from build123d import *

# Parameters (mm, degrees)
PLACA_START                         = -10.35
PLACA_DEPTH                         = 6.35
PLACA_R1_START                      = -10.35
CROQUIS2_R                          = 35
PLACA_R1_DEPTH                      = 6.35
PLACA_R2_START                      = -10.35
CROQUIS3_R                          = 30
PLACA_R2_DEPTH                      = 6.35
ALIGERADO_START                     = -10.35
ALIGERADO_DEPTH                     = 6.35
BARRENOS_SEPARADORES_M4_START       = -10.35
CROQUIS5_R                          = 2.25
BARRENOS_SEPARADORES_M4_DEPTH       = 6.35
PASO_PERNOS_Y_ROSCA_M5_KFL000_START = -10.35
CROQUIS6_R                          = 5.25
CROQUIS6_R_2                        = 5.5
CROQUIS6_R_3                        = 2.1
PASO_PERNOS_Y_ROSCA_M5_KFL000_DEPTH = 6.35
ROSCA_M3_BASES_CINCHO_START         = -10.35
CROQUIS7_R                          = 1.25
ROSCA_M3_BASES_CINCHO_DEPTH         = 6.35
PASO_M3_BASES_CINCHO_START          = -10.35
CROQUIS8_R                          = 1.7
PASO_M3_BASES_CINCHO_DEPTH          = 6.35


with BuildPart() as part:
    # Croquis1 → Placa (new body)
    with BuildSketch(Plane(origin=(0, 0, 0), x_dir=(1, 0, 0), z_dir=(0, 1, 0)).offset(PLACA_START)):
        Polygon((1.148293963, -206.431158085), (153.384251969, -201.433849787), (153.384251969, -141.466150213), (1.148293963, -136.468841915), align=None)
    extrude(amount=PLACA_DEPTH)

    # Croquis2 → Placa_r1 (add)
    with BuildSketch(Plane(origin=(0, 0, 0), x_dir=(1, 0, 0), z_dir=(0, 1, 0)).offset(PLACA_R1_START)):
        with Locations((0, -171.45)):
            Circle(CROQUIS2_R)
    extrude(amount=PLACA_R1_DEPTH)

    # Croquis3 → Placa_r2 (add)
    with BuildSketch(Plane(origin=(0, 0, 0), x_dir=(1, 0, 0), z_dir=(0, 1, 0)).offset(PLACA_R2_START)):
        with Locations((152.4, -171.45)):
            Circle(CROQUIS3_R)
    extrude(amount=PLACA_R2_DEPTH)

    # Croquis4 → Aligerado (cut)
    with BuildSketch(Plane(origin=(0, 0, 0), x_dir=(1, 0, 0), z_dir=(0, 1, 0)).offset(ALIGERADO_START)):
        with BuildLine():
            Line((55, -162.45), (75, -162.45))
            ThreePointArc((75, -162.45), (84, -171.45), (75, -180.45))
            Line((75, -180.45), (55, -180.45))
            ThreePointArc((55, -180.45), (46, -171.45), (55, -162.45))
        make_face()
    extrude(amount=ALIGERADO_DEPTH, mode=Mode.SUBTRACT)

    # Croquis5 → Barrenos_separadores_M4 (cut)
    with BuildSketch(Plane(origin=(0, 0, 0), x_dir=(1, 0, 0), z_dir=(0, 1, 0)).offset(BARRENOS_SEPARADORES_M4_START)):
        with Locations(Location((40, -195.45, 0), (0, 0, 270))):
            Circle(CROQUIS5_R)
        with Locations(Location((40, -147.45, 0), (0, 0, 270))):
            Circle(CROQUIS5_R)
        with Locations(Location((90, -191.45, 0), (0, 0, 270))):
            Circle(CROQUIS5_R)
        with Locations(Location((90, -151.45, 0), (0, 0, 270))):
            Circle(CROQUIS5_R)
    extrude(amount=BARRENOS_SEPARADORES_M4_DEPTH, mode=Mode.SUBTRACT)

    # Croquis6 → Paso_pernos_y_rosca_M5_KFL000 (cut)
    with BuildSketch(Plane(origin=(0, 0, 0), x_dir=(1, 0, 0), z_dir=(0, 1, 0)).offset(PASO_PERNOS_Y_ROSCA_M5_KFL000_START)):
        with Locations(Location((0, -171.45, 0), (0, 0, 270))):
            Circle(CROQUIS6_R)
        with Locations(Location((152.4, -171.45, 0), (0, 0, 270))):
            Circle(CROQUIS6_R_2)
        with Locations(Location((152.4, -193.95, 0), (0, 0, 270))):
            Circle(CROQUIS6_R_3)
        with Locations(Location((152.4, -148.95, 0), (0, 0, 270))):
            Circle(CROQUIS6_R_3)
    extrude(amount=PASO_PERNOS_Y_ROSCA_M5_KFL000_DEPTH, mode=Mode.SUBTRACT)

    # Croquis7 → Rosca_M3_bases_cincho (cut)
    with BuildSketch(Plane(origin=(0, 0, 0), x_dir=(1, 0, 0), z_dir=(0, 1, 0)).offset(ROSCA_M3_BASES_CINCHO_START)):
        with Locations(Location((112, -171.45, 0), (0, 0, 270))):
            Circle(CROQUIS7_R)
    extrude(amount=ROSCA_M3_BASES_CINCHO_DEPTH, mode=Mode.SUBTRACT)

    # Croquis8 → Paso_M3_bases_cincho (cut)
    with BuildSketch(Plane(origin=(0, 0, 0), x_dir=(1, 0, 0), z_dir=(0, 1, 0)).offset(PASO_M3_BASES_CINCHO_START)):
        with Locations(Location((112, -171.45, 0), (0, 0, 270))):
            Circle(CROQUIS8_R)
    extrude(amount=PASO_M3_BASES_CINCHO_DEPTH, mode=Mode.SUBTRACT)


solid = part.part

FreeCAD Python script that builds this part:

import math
import FreeCAD as App
import Part
import Sketcher

V = App.Vector
Q = App.Units.Quantity

doc = App.newDocument("Part")
body = doc.addObject("PartDesign::Body", "Body")

# Sketch on XZ plane
sketch1 = body.newObject("Sketcher::SketchObject", "Sketch")
sketch1.AttachmentSupport = (doc.getObject("XZ_Plane"), [""])
sketch1.MapMode = "FlatFace"
sketch1.AttachmentOffset = App.Placement(V(0, 0, 10.35), App.Rotation())
sketch1.addGeometry([
    Part.LineSegment(V(1.148294, 206.431158, 0), V(153.384252, 201.43385, 0)),
    Part.LineSegment(V(153.384252, 201.43385, 0), V(153.384252, 141.46615, 0)),
    Part.LineSegment(V(153.384252, 141.46615, 0), V(1.148294, 136.468842, 0)),
    Part.LineSegment(V(1.148294, 136.468842, 0), V(1.148294, 206.431158, 0)),
], False)
sketch1.addConstraint([
    Sketcher.Constraint("Coincident", 0, 2, 1, 1),
    Sketcher.Constraint("Coincident", 1, 2, 2, 1),
    Sketcher.Constraint("Coincident", 2, 2, 3, 1),
    Sketcher.Constraint("Coincident", 3, 2, 0, 1),
    Sketcher.Constraint("Vertical", 1),
    Sketcher.Constraint("Vertical", 3),
    Sketcher.Constraint("Equal", 0, 2),
    Sketcher.Constraint("DistanceY", 1, 2, 1, 1, Q("59.9677 mm")),
    Sketcher.Constraint("DistanceY", 3, 1, 3, 2, Q("69.962316 mm")),
    Sketcher.Constraint("DistanceX", -1, 1, 0, 2, Q("153.384252 mm")),
    Sketcher.Constraint("DistanceY", -1, 1, 0, 2, Q("201.43385 mm")),
    Sketcher.Constraint("DistanceX", 2, 2, 1, 2, Q("152.235958 mm")),
])
pad1 = body.newObject("PartDesign::Pad", "Pad")
pad1.Profile = sketch1
pad1.Length = 6.35
pad1.Reversed = True

# Sketch on XZ plane
sketch2 = body.newObject("Sketcher::SketchObject", "Sketch001")
sketch2.AttachmentSupport = (doc.getObject("XZ_Plane"), [""])
sketch2.MapMode = "FlatFace"
sketch2.AttachmentOffset = App.Placement(V(0, 0, 10.35), App.Rotation())
sketch2.addGeometry(Part.Circle(V(0, 171.45, 0), V(0, 0, 1), 35), False)
sketch2.addConstraint([
    Sketcher.Constraint("PointOnObject", 0, 3, -2),
    Sketcher.Constraint("Diameter", 0, Q("70 mm")),
    Sketcher.Constraint("DistanceY", -1, 1, 0, 3, Q("171.45 mm")),
])
pad2 = body.newObject("PartDesign::Pad", "Pad001")
pad2.Profile = sketch2
pad2.Length = 6.35
pad2.Reversed = True

# Sketch on XZ plane
sketch3 = body.newObject("Sketcher::SketchObject", "Sketch002")
sketch3.AttachmentSupport = (doc.getObject("XZ_Plane"), [""])
sketch3.MapMode = "FlatFace"
sketch3.AttachmentOffset = App.Placement(V(0, 0, 10.35), App.Rotation())
sketch3.addGeometry(Part.Circle(V(152.4, 171.45, 0), V(0, 0, 1), 30), False)
sketch3.addConstraint([
    Sketcher.Constraint("Diameter", 0, Q("60 mm")),
    Sketcher.Constraint("DistanceX", -1, 1, 0, 3, Q("152.4 mm")),
    Sketcher.Constraint("DistanceY", -1, 1, 0, 3, Q("171.45 mm")),
])
pad3 = body.newObject("PartDesign::Pad", "Pad002")
pad3.Profile = sketch3
pad3.Length = 6.35
pad3.Reversed = True

# Sketch on XZ plane
sketch4 = body.newObject("Sketcher::SketchObject", "Sketch003")
sketch4.AttachmentSupport = (doc.getObject("XZ_Plane"), [""])
sketch4.MapMode = "FlatFace"
sketch4.AttachmentOffset = App.Placement(V(0, 0, 10.35), App.Rotation())
sketch4.addGeometry([
    Part.LineSegment(V(75, 162.45, 0), V(55, 162.45, 0)),
    Part.ArcOfCircle(Part.Circle(V(55, 171.45, 0), V(0, 0, 1), 9), math.radians(90), math.radians(270)),
    Part.LineSegment(V(55, 180.45, 0), V(75, 180.45, 0)),
    Part.ArcOfCircle(Part.Circle(V(75, 171.45, 0), V(0, 0, 1), 9), math.radians(-90), math.radians(90)),
], False)
sketch4.addConstraint([
    Sketcher.Constraint("Tangent", 0, 2, 1, 2),
    Sketcher.Constraint("Tangent", 1, 1, 2, 1),
    Sketcher.Constraint("Tangent", 2, 2, 3, 2),
    Sketcher.Constraint("Tangent", 3, 1, 0, 1),
    Sketcher.Constraint("Horizontal", 0),
    Sketcher.Constraint("Horizontal", 2),
    Sketcher.Constraint("Radius", 1, Q("9 mm")),
    Sketcher.Constraint("DistanceX", 0, 2, 0, 1, Q("20 mm")),
    Sketcher.Constraint("DistanceX", -1, 1, 1, 3, Q("55 mm")),
    Sketcher.Constraint("DistanceY", -1, 1, 1, 3, Q("171.45 mm")),
])
pocket1 = body.newObject("PartDesign::Pocket", "Pocket")
pocket1.Profile = sketch4
pocket1.Length = 6.35

# Sketch on XZ plane
sketch5 = body.newObject("Sketcher::SketchObject", "Sketch004")
sketch5.AttachmentSupport = (doc.getObject("XZ_Plane"), [""])
sketch5.MapMode = "FlatFace"
sketch5.AttachmentOffset = App.Placement(V(0, 0, 10.35), App.Rotation())
sketch5.addGeometry([
    Part.Circle(V(40, 195.45, 0), V(0, 0, 1), 2.25),
    Part.Circle(V(40, 147.45, 0), V(0, 0, 1), 2.25),
    Part.Circle(V(90, 191.45, 0), V(0, 0, 1), 2.25),
    Part.Circle(V(90, 151.45, 0), V(0, 0, 1), 2.25),
], False)
sketch5.addConstraint([
    Sketcher.Constraint("Equal", 0, 1),
    Sketcher.Constraint("Equal", 1, 2),
    Sketcher.Constraint("Equal", 2, 3),
    Sketcher.Constraint("Vertical", 0, 3, 1, 3),
    Sketcher.Constraint("Vertical", 2, 3, 3, 3),
    Sketcher.Constraint("Diameter", 0, Q("4.5 mm")),
    Sketcher.Constraint("DistanceX", -1, 1, 0, 3, Q("40 mm")),
    Sketcher.Constraint("DistanceX", -1, 1, 2, 3, Q("90 mm")),
    Sketcher.Constraint("DistanceY", 1, 3, 0, 3, Q("48 mm")),
    Sketcher.Constraint("DistanceY", 2, 3, 0, 3, Q("4 mm")),
    Sketcher.Constraint("DistanceY", 3, 3, 2, 3, Q("40 mm")),
    Sketcher.Constraint("DistanceY", -1, 1, 0, 3, Q("195.45 mm")),
])
pocket2 = body.newObject("PartDesign::Pocket", "Pocket001")
pocket2.Profile = sketch5
pocket2.Length = 6.35

# Sketch on XZ plane
sketch6 = body.newObject("Sketcher::SketchObject", "Sketch005")
sketch6.AttachmentSupport = (doc.getObject("XZ_Plane"), [""])
sketch6.MapMode = "FlatFace"
sketch6.AttachmentOffset = App.Placement(V(0, 0, 10.35), App.Rotation())
sketch6.addGeometry([
    Part.Circle(V(0, 171.45, 0), V(0, 0, 1), 5.25),
    Part.Circle(V(152.4, 171.45, 0), V(0, 0, 1), 5.5),
    Part.Circle(V(152.4, 193.95, 0), V(0, 0, 1), 2.1),
    Part.Circle(V(152.4, 148.95, 0), V(0, 0, 1), 2.1),
], False)
sketch6.addConstraint([
    Sketcher.Constraint("Equal", 2, 3),
    Sketcher.Constraint("PointOnObject", 0, 3, -2),
    Sketcher.Constraint("Horizontal", 0, 3, 1, 3),
    Sketcher.Constraint("Vertical", 1, 3, 2, 3),
    Sketcher.Constraint("Vertical", 2, 3, 3, 3),
    Sketcher.Constraint("Diameter", 1, Q("11 mm")),
    Sketcher.Constraint("Diameter", 0, Q("10.5 mm")),
    Sketcher.Constraint("Diameter", 2, Q("4.2 mm")),
    Sketcher.Constraint("DistanceY", 3, 3, 2, 3, Q("45 mm")),
    Sketcher.Constraint("DistanceX", -1, 1, 1, 3, Q("152.4 mm")),
    Sketcher.Constraint("DistanceY", 1, 3, 2, 3, Q("22.5 mm")),
    Sketcher.Constraint("DistanceY", -1, 1, 0, 3, Q("171.45 mm")),
])
pocket3 = body.newObject("PartDesign::Pocket", "Pocket002")
pocket3.Profile = sketch6
pocket3.Length = 6.35

# Sketch on XZ plane
sketch7 = body.newObject("Sketcher::SketchObject", "Sketch006")
sketch7.AttachmentSupport = (doc.getObject("XZ_Plane"), [""])
sketch7.MapMode = "FlatFace"
sketch7.AttachmentOffset = App.Placement(V(0, 0, 10.35), App.Rotation())
sketch7.addGeometry(Part.Circle(V(112, 171.45, 0), V(0, 0, 1), 1.25), False)
sketch7.addConstraint([
    Sketcher.Constraint("Diameter", 0, Q("2.5 mm")),
    Sketcher.Constraint("DistanceX", -1, 1, 0, 3, Q("112 mm")),
    Sketcher.Constraint("DistanceY", -1, 1, 0, 3, Q("171.45 mm")),
])
pocket4 = body.newObject("PartDesign::Pocket", "Pocket003")
pocket4.Profile = sketch7
pocket4.Length = 6.35

# Sketch on XZ plane
sketch8 = body.newObject("Sketcher::SketchObject", "Sketch007")
sketch8.AttachmentSupport = (doc.getObject("XZ_Plane"), [""])
sketch8.MapMode = "FlatFace"
sketch8.AttachmentOffset = App.Placement(V(0, 0, 10.35), App.Rotation())
sketch8.addGeometry(Part.Circle(V(112, 171.45, 0), V(0, 0, 1), 1.7), False)
sketch8.addConstraint([
    Sketcher.Constraint("Diameter", 0, Q("3.4 mm")),
    Sketcher.Constraint("DistanceX", -1, 1, 0, 3, Q("112 mm")),
    Sketcher.Constraint("DistanceY", -1, 1, 0, 3, Q("171.45 mm")),
])
pocket5 = body.newObject("PartDesign::Pocket", "Pocket004")
pocket5.Profile = sketch8
pocket5.Length = 6.35

doc.recompute()
